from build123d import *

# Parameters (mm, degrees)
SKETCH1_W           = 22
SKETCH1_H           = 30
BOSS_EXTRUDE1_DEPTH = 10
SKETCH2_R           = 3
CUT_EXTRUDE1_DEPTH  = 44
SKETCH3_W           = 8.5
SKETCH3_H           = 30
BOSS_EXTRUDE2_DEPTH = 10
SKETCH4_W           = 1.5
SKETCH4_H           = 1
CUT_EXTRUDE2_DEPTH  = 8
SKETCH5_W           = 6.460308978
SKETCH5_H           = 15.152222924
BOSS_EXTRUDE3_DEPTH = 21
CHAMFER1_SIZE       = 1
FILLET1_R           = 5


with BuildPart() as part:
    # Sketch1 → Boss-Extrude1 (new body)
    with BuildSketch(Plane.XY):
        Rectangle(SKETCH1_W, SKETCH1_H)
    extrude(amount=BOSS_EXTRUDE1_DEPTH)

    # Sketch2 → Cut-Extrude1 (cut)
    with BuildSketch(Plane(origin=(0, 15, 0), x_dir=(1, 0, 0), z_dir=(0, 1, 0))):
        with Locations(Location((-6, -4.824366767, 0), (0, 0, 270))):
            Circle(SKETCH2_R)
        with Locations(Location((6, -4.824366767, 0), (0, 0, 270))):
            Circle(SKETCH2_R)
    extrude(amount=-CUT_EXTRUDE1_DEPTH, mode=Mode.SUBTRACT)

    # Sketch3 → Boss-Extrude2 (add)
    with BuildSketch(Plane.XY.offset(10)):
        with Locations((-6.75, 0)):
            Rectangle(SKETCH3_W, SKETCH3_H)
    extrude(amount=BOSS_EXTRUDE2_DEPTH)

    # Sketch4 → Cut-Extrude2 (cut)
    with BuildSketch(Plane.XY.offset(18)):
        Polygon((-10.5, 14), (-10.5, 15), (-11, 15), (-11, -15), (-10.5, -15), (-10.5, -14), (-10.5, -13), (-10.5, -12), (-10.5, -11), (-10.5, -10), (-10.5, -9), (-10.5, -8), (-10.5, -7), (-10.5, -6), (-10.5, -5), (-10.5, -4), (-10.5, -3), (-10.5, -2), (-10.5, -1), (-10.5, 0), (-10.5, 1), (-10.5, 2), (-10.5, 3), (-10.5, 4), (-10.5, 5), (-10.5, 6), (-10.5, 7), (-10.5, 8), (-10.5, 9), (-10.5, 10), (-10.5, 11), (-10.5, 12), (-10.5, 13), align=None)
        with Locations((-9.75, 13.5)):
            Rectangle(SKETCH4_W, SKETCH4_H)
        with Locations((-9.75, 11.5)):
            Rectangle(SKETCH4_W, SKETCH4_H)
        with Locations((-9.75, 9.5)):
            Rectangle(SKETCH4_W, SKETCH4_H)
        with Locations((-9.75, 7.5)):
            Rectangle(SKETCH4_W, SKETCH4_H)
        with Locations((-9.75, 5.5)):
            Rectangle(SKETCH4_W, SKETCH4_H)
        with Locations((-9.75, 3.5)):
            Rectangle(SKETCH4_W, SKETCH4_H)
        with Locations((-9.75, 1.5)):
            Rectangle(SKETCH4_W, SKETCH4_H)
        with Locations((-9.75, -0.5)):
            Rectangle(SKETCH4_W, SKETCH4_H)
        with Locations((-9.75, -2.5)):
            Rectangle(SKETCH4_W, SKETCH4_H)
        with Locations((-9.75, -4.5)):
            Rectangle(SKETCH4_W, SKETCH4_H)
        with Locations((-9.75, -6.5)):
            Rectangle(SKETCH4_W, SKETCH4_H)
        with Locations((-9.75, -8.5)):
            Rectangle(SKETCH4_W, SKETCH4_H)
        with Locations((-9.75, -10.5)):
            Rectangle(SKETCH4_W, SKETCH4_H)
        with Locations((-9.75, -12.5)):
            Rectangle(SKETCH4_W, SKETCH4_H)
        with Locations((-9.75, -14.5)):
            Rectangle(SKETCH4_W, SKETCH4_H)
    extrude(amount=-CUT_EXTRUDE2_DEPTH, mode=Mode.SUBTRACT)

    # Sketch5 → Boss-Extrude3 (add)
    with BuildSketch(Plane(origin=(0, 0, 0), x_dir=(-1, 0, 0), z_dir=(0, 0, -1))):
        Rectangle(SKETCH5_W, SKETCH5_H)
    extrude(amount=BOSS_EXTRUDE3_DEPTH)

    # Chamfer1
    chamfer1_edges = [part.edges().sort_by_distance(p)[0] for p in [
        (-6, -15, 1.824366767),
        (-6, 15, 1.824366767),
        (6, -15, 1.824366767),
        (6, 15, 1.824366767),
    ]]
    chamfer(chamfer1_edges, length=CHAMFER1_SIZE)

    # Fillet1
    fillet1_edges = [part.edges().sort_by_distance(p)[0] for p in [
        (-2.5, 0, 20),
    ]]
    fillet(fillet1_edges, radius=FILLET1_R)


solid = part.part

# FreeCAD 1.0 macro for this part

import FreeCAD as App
import Part
import Sketcher
from FreeCAD import Vector


def edges_at(feature, points):
    """Names of the edges that pass closest to the given points."""
    edges = feature.Shape.Edges
    near = lambda p: min(range(len(edges)), key=lambda i: edges[i].distToShape(Part.Vertex(*p))[0])
    return sorted({f"Edge{near(p) + 1}" for p in points})

doc = App.newDocument("Part")
body = doc.addObject("PartDesign::Body", "Body")

sketch1 = doc.addObject("Sketcher::SketchObject", "Sketch")
body.addObject(sketch1)
sketch1.AttachmentSupport = (doc.XY_Plane, [""])
sketch1.MapMode = "FlatFace"
sketch1.addGeometry([
    Part.LineSegment(Vector(-11, 15, 0), Vector(-11, -15, 0)),
    Part.LineSegment(Vector(-11, -15, 0), Vector(11, -15, 0)),
    Part.LineSegment(Vector(11, -15, 0), Vector(11, 15, 0)),
    Part.LineSegment(Vector(11, 15, 0), Vector(-11, 15, 0)),
], False)
sketch1.addConstraint([
    Sketcher.Constraint("Coincident", 0, 2, 1, 1),
    Sketcher.Constraint("Coincident", 1, 2, 2, 1),
    Sketcher.Constraint("Coincident", 2, 2, 3, 1),
    Sketcher.Constraint("Coincident", 3, 2, 0, 1),
    Sketcher.Constraint("Vertical", 0),
    Sketcher.Constraint("Horizontal", 1),
    Sketcher.Constraint("Vertical", 2),
    Sketcher.Constraint("Horizontal", 3),
    Sketcher.Constraint("Symmetric", 0, 2, 2, 2, -1, 1),
    Sketcher.Constraint("DistanceX", 1, 1, 1, 2, 22.0),
    Sketcher.Constraint("DistanceY", 0, 2, 0, 1, 30.0),
])
pad1 = doc.addObject("PartDesign::Pad", "Pad")
body.addObject(pad1)
pad1.Profile = sketch1
pad1.Length = 10

sketch2 = doc.addObject("Sketcher::SketchObject", "Sketch001")
body.addObject(sketch2)
sketch2.AttachmentSupport = (doc.XZ_Plane, [""])
sketch2.MapMode = "FlatFace"
sketch2.AttachmentOffset = App.Placement(Vector(0, 0, -15), App.Rotation())
sketch2.addGeometry([
    Part.Circle(Vector(-6, 4.824367, 0), Vector(0, 0, 1), 3),
    Part.Circle(Vector(6, 4.824367, 0), Vector(0, 0, 1), 3),
], False)
sketch2.addConstraint([
    Sketcher.Constraint("Equal", 0, 1),
    Sketcher.Constraint("Symmetric", 0, 3, 1, 3, -2),
    Sketcher.Constraint("Diameter", 0, 6.0),
    Sketcher.Constraint("DistanceX", 0, 3, -1, 1, 6.0),
    Sketcher.Constraint("DistanceY", -1, 1, 0, 3, 4.824367),
])
pocket1 = doc.addObject("PartDesign::Pocket", "Pocket")
body.addObject(pocket1)
pocket1.Profile = sketch2
pocket1.Length = 44
pocket1.Reversed = True

sketch3 = doc.addObject("Sketcher::SketchObject", "Sketch002")
body.addObject(sketch3)
sketch3.AttachmentSupport = (doc.XY_Plane, [""])
sketch3.MapMode = "FlatFace"
sketch3.AttachmentOffset = App.Placement(Vector(0, 0, 10), App.Rotation())
sketch3.addGeometry([
    Part.LineSegment(Vector(-11, 15, 0), Vector(-11, -15, 0)),
    Part.LineSegment(Vector(-11, -15, 0), Vector(-2.5, -15, 0)),
    Part.LineSegment(Vector(-2.5, -15, 0), Vector(-2.5, 15, 0)),
    Part.LineSegment(Vector(-2.5, 15, 0), Vector(-11, 15, 0)),
], False)
sketch3.addConstraint([
    Sketcher.Constraint("Coincident", 0, 2, 1, 1),
    Sketcher.Constraint("Coincident", 1, 2, 2, 1),
    Sketcher.Constraint("Coincident", 2, 2, 3, 1),
    Sketcher.Constraint("Coincident", 3, 2, 0, 1),
    Sketcher.Constraint("Vertical", 0),
    Sketcher.Constraint("Horizontal", 1),
    Sketcher.Constraint("Vertical", 2),
    Sketcher.Constraint("Horizontal", 3),
    Sketcher.Constraint("DistanceY", 0, 2, 0, 1, 30.0),
    Sketcher.Constraint("DistanceX", 1, 1, 1, 2, 8.5),
    Sketcher.Constraint("DistanceX", 0, 2, -1, 1, 11.0),
    Sketcher.Constraint("DistanceY", 0, 2, -1, 1, 15.0),
])
pad2 = doc.addObject("PartDesign::Pad", "Pad001")
body.addObject(pad2)
pad2.Profile = sketch3
pad2.Length = 10

sketch4 = doc.addObject("Sketcher::SketchObject", "Sketch003")
body.addObject(sketch4)
sketch4.AttachmentSupport = (doc.XY_Plane, [""])
sketch4.MapMode = "FlatFace"
sketch4.AttachmentOffset = App.Placement(Vector(0, 0, 18), App.Rotation())
sketch4.addGeometry([
    Part.LineSegment(Vector(-10.5, 15, 0), Vector(-11, 15, 0)),
    Part.LineSegment(Vector(-11, 15, 0), Vector(-11, -15, 0)),
    Part.LineSegment(Vector(-11, -15, 0), Vector(-9, -15, 0)),
    Part.LineSegment(Vector(-9, -15, 0), Vector(-9, -14, 0)),
    Part.LineSegment(Vector(-9, -14, 0), Vector(-10.5, -14, 0)),
    Part.LineSegment(Vector(-10.5, -14, 0), Vector(-10.5, -13, 0)),
    Part.LineSegment(Vector(-10.5, -13, 0), Vector(-9, -13, 0)),
    Part.LineSegment(Vector(-9, -13, 0), Vector(-9, -12, 0)),
    Part.LineSegment(Vector(-9, -12, 0), Vector(-10.5, -12, 0)),
    Part.LineSegment(Vector(-10.5, -12, 0), Vector(-10.5, -11, 0)),
    Part.LineSegment(Vector(-10.5, -11, 0), Vector(-9, -11, 0)),
    Part.LineSegment(Vector(-9, -11, 0), Vector(-9, -10, 0)),
    Part.LineSegment(Vector(-9, -10, 0), Vector(-10.5, -10, 0)),
    Part.LineSegment(Vector(-10.5, -10, 0), Vector(-10.5, -9, 0)),
    Part.LineSegment(Vector(-10.5, -9, 0), Vector(-9, -9, 0)),
    Part.LineSegment(Vector(-9, -9, 0), Vector(-9, -8, 0)),
    Part.LineSegment(Vector(-9, -8, 0), Vector(-10.5, -8, 0)),
    Part.LineSegment(Vector(-10.5, -8, 0), Vector(-10.5, -7, 0)),
    Part.LineSegment(Vector(-10.5, -7, 0), Vector(-9, -7, 0)),
    Part.LineSegment(Vector(-9, -7, 0), Vector(-9, -6, 0)),
    Part.LineSegment(Vector(-9, -6, 0), Vector(-10.5, -6, 0)),
    Part.LineSegment(Vector(-10.5, -6, 0), Vector(-10.5, -5, 0)),
    Part.LineSegment(Vector(-10.5, -5, 0), Vector(-9, -5, 0)),
    Part.LineSegment(Vector(-9, -5, 0), Vector(-9, -4, 0)),
    Part.LineSegment(Vector(-9, -4, 0), Vector(-10.5, -4, 0)),
    Part.LineSegment(Vector(-10.5, -4, 0), Vector(-10.5, -3, 0)),
    Part.LineSegment(Vector(-10.5, -3, 0), Vector(-9, -3, 0)),
    Part.LineSegment(Vector(-9, -3, 0), Vector(-9, -2, 0)),
    Part.LineSegment(Vector(-9, -2, 0), Vector(-10.5, -2, 0)),
    Part.LineSegment(Vector(-10.5, -2, 0), Vector(-10.5, -1, 0)),
    Part.LineSegment(Vector(-10.5, -1, 0), Vector(-9, -1, 0)),
    Part.LineSegment(Vector(-9, -1, 0), Vector(-9, 0, 0)),
    Part.LineSegment(Vector(-9, 0, 0), Vector(-10.5, 0, 0)),
    Part.LineSegment(Vector(-10.5, 0, 0), Vector(-10.5, 1, 0)),
    Part.LineSegment(Vector(-10.5, 1, 0), Vector(-9, 1, 0)),
    Part.LineSegment(Vector(-9, 1, 0), Vector(-9, 2, 0)),
    Part.LineSegment(Vector(-9, 2, 0), Vector(-10.5, 2, 0)),
    Part.LineSegment(Vector(-10.5, 2, 0), Vector(-10.5, 3, 0)),
    Part.LineSegment(Vector(-10.5, 3, 0), Vector(-9, 3, 0)),
    Part.LineSegment(Vector(-9, 3, 0), Vector(-9, 4, 0)),
    Part.LineSegment(Vector(-9, 4, 0), Vector(-10.5, 4, 0)),
    Part.LineSegment(Vector(-10.5, 4, 0), Vector(-10.5, 5, 0)),
    Part.LineSegment(Vector(-10.5, 5, 0), Vector(-9, 5, 0)),
    Part.LineSegment(Vector(-9, 5, 0), Vector(-9, 6, 0)),
    Part.LineSegment(Vector(-9, 6, 0), Vector(-10.5, 6, 0)),
    Part.LineSegment(Vector(-10.5, 6, 0), Vector(-10.5, 7, 0)),
    Part.LineSegment(Vector(-10.5, 7, 0), Vector(-9, 7, 0)),
    Part.LineSegment(Vector(-9, 7, 0), Vector(-9, 8, 0)),
    Part.LineSegment(Vector(-9, 8, 0), Vector(-10.5, 8, 0)),
    Part.LineSegment(Vector(-10.5, 8, 0), Vector(-10.5, 9, 0)),
    Part.LineSegment(Vector(-10.5, 9, 0), Vector(-9, 9, 0)),
    Part.LineSegment(Vector(-9, 9, 0), Vector(-9, 10, 0)),
    Part.LineSegment(Vector(-9, 10, 0), Vector(-10.5, 10, 0)),
    Part.LineSegment(Vector(-10.5, 10, 0), Vector(-10.5, 11, 0)),
    Part.LineSegment(Vector(-10.5, 11, 0), Vector(-9, 11, 0)),
    Part.LineSegment(Vector(-9, 11, 0), Vector(-9, 12, 0)),
    Part.LineSegment(Vector(-9, 12, 0), Vector(-10.5, 12, 0)),
    Part.LineSegment(Vector(-10.5, 12, 0), Vector(-10.5, 13, 0)),
    Part.LineSegment(Vector(-10.5, 13, 0), Vector(-9, 13, 0)),
    Part.LineSegment(Vector(-9, 13, 0), Vector(-9, 14, 0)),
    Part.LineSegment(Vector(-9, 14, 0), Vector(-10.5, 14, 0)),
    Part.LineSegment(Vector(-10.5, 14, 0), Vector(-10.5, 15, 0)),
], False)
sketch4.addConstraint([
    Sketcher.Constraint("Coincident", 0, 2, 1, 1),
    Sketcher.Constraint("Coincident", 1, 2, 2, 1),
    Sketcher.Constraint("Coincident", 2, 2, 3, 1),
    Sketcher.Constraint("Coincident", 3, 2, 4, 1),
    Sketcher.Constraint("Coincident", 4, 2, 5, 1),
    Sketcher.Constraint("Coincident", 5, 2, 6, 1),
    Sketcher.Constraint("Coincident", 6, 2, 7, 1),
    Sketcher.Constraint("Coincident", 7, 2, 8, 1),
    Sketcher.Constraint("Coincident", 8, 2, 9, 1),
    Sketcher.Constraint("Coincident", 9, 2, 10, 1),
    Sketcher.Constraint("Coincident", 10, 2, 11, 1),
    Sketcher.Constraint("Coincident", 11, 2, 12, 1),
    Sketcher.Constraint("Coincident", 12, 2, 13, 1),
    Sketcher.Constraint("Coincident", 13, 2, 14, 1),
    Sketcher.Constraint("Coincident", 14, 2, 15, 1),
    Sketcher.Constraint("Coincident", 15, 2, 16, 1),
    Sketcher.Constraint("Coincident", 16, 2, 17, 1),
    Sketcher.Constraint("Coincident", 17, 2, 18, 1),
    Sketcher.Constraint("Coincident", 18, 2, 19, 1),
    Sketcher.Constraint("Coincident", 19, 2, 20, 1),
    Sketcher.Constraint("Coincident", 20, 2, 21, 1),
    Sketcher.Constraint("Coincident", 21, 2, 22, 1),
    Sketcher.Constraint("Coincident", 22, 2, 23, 1),
    Sketcher.Constraint("Coincident", 23, 2, 24, 1),
    Sketcher.Constraint("Coincident", 24, 2, 25, 1),
    Sketcher.Constraint("Coincident", 25, 2, 26, 1),
    Sketcher.Constraint("Coincident", 26, 2, 27, 1),
    Sketcher.Constraint("Coincident", 27, 2, 28, 1),
    Sketcher.Constraint("Coincident", 28, 2, 29, 1),
    Sketcher.Constraint("Coincident", 29, 2, 30, 1),
    Sketcher.Constraint("Coincident", 30, 2, 31, 1),
    Sketcher.Constraint("Coincident", 31, 2, 32, 1),
    Sketcher.Constraint("Coincident", 32, 2, 33, 1),
    Sketcher.Constraint("Coincident", 33, 2, 34, 1),
    Sketcher.Constraint("Coincident", 34, 2, 35, 1),
    Sketcher.Constraint("Coincident", 35, 2, 36, 1),
    Sketcher.Constraint("Coincident", 36, 2, 37, 1),
    Sketcher.Constraint("Coincident", 37, 2, 38, 1),
    Sketcher.Constraint("Coincident", 38, 2, 39, 1),
    Sketcher.Constraint("Coincident", 39, 2, 40, 1),
    Sketcher.Constraint("Coincident", 40, 2, 41, 1),
    Sketcher.Constraint("Coincident", 41, 2, 42, 1),
    Sketcher.Constraint("Coincident", 42, 2, 43, 1),
    Sketcher.Constraint("Coincident", 43, 2, 44, 1),
    Sketcher.Constraint("Coincident", 44, 2, 45, 1),
    Sketcher.Constraint("Coincident", 45, 2, 46, 1),
    Sketcher.Constraint("Coincident", 46, 2, 47, 1),
    Sketcher.Constraint("Coincident", 47, 2, 48, 1),
    Sketcher.Constraint("Coincident", 48, 2, 49, 1),
    Sketcher.Constraint("Coincident", 49, 2, 50, 1),
    Sketcher.Constraint("Coincident", 50, 2, 51, 1),
    Sketcher.Constraint("Coincident", 51, 2, 52, 1),
    Sketcher.Constraint("Coincident", 52, 2, 53, 1),
    Sketcher.Constraint("Coincident", 53, 2, 54, 1),
    Sketcher.Constraint("Coincident", 54, 2, 55, 1),
    Sketcher.Constraint("Coincident", 55, 2, 56, 1),
    Sketcher.Constraint("Coincident", 56, 2, 57, 1),
    Sketcher.Constraint("Coincident", 57, 2, 58, 1),
    Sketcher.Constraint("Coincident", 58, 2, 59, 1),
    Sketcher.Constraint("Coincident", 59, 2, 60, 1),
    Sketcher.Constraint("Coincident", 60, 2, 61, 1),
    Sketcher.Constraint("Coincident", 61, 2, 0, 1),
    Sketcher.Constraint("Horizontal", 0),
    Sketcher.Constraint("Vertical", 1),
    Sketcher.Constraint("Horizontal", 2),
    Sketcher.Constraint("Vertical", 3),
    Sketcher.Constraint("Horizontal", 4),
    Sketcher.Constraint("Vertical", 5),
    Sketcher.Constraint("Horizontal", 6),
    Sketcher.Constraint("Vertical", 7),
    Sketcher.Constraint("Horizontal", 8),
    Sketcher.Constraint("Vertical", 9),
    Sketcher.Constraint("Horizontal", 10),
    Sketcher.Constraint("Vertical", 11),
    Sketcher.Constraint("Horizontal", 12),
    Sketcher.Constraint("Vertical", 13),
    Sketcher.Constraint("Horizontal", 14),
    Sketcher.Constraint("Vertical", 15),
    Sketcher.Constraint("Horizontal", 16),
    Sketcher.Constraint("Vertical", 17),
    Sketcher.Constraint("Horizontal", 18),
    Sketcher.Constraint("Vertical", 19),
    Sketcher.Constraint("Horizontal", 20),
    Sketcher.Constraint("Vertical", 21),
    Sketcher.Constraint("Horizontal", 22),
    Sketcher.Constraint("Vertical", 23),
    Sketcher.Constraint("Horizontal", 24),
    Sketcher.Constraint("Vertical", 25),
    Sketcher.Constraint("Horizontal", 26),
    Sketcher.Constraint("Vertical", 27),
    Sketcher.Constraint("Horizontal", 28),
    Sketcher.Constraint("Vertical", 29),
    Sketcher.Constraint("Horizontal", 30),
    Sketcher.Constraint("Vertical", 31),
    Sketcher.Constraint("Horizontal", 32),
    Sketcher.Constraint("Vertical", 33),
    Sketcher.Constraint("Horizontal", 34),
    Sketcher.Constraint("Vertical", 35),
    Sketcher.Constraint("Horizontal", 36),
    Sketcher.Constraint("Vertical", 37),
    Sketcher.Constraint("Horizontal", 38),
    Sketcher.Constraint("Vertical", 39),
    Sketcher.Constraint("Horizontal", 40),
    Sketcher.Constraint("Vertical", 41),
    Sketcher.Constraint("Horizontal", 42),
    Sketcher.Constraint("Vertical", 43),
    Sketcher.Constraint("Horizontal", 44),
    Sketcher.Constraint("Vertical", 45),
    Sketcher.Constraint("Horizontal", 46),
    Sketcher.Constraint("Vertical", 47),
    Sketcher.Constraint("Horizontal", 48),
    Sketcher.Constraint("Vertical", 49),
    Sketcher.Constraint("Horizontal", 50),
    Sketcher.Constraint("Vertical", 51),
    Sketcher.Constraint("Horizontal", 52),
    Sketcher.Constraint("Vertical", 53),
    Sketcher.Constraint("Horizontal", 54),
    Sketcher.Constraint("Vertical", 55),
    Sketcher.Constraint("Horizontal", 56),
    Sketcher.Constraint("Vertical", 57),
    Sketcher.Constraint("Horizontal", 58),
    Sketcher.Constraint("Vertical", 59),
    Sketcher.Constraint("Horizontal", 60),
    Sketcher.Constraint("Vertical", 61),
    Sketcher.Constraint("Symmetric", 29, 2, 33, 2, -1),
    Sketcher.Constraint("Symmetric", 27, 2, 35, 2, -1),
    Sketcher.Constraint("Symmetric", 25, 2, 37, 2, -1),
    Sketcher.Constraint("Symmetric", 23, 2, 39, 2, -1),
    Sketcher.Constraint("Symmetric", 21, 2, 41, 2, -1),
    Sketcher.Constraint("Symmetric", 19, 2, 43, 2, -1),
    Sketcher.Constraint("Symmetric", 17, 2, 45, 2, -1),
    Sketcher.Constraint("Symmetric", 15, 2, 47, 2, -1),
    Sketcher.Constraint("Symmetric", 13, 2, 49, 2, -1),
    Sketcher.Constraint("Symmetric", 11, 2, 51, 2, -1),
    Sketcher.Constraint("Symmetric", 9, 2, 53, 2, -1),
    Sketcher.Constraint("Symmetric", 7, 2, 55, 2, -1),
    Sketcher.Constraint("Symmetric", 5, 2, 57, 2, -1),
    Sketcher.Constraint("Symmetric", 3, 2, 59, 2, -1),
    Sketcher.Constraint("PointOnObject", 31, 2, -1),
    Sketcher.Constraint("Vertical", 3, 2, 6, 2),
    Sketcher.Constraint("Vertical", 5, 2, 8, 2),
    Sketcher.Constraint("Vertical", 7, 2, 10, 2),
    Sketcher.Constraint("Vertical", 9, 2, 12, 2),
    Sketcher.Constraint("Vertical", 11, 2, 14, 2),
    Sketcher.Constraint("Vertical", 13, 2, 16, 2),
    Sketcher.Constraint("Vertical", 15, 2, 18, 2),
    Sketcher.Constraint("Vertical", 17, 2, 20, 2),
    Sketcher.Constraint("Vertical", 19, 2, 22, 2),
    Sketcher.Constraint("Vertical", 21, 2, 24, 2),
    Sketcher.Constraint("Vertical", 23, 2, 26, 2),
    Sketcher.Constraint("Vertical", 25, 2, 28, 2),
    Sketcher.Constraint("Vertical", 27, 2, 30, 2),
    Sketcher.Constraint("Vertical", 57, 2, 60, 2),
    Sketcher.Constraint("Equal", 3, 5),
    Sketcher.Constraint("Equal", 5, 7),
    Sketcher.Constraint("Equal", 7, 9),
    Sketcher.Constraint("Equal", 9, 11),
    Sketcher.Constraint("Equal", 11, 13),
    Sketcher.Constraint("Equal", 13, 15),
    Sketcher.Constraint("Equal", 15, 17),
    Sketcher.Constraint("Equal", 17, 19),
    Sketcher.Constraint("Equal", 19, 21),
    Sketcher.Constraint("Equal", 21, 23),
    Sketcher.Constraint("Equal", 23, 25),
    Sketcher.Constraint("Equal", 25, 27),
    Sketcher.Constraint("Equal", 27, 29),
    Sketcher.Constraint("Equal", 29, 31),
    Sketcher.Constraint("Equal", 59, 61),
    Sketcher.Constraint("DistanceX", 2, 1, 2, 2, 2.0),
    Sketcher.Constraint("DistanceY", 1, 2, 1, 1, 30.0),
    Sketcher.Constraint("DistanceX", 0, 2, 0, 1, 0.5),
    Sketcher.Constraint("DistanceX", 0, 2, -1, 1, 11.0),
])
pocket2 = doc.addObject("PartDesign::Pocket", "Pocket001")
body.addObject(pocket2)
pocket2.Profile = sketch4
pocket2.Length = 8

sketch5 = doc.addObject("Sketcher::SketchObject", "Sketch004")
body.addObject(sketch5)
sketch5.AttachmentSupport = (doc.XY_Plane, [""])
sketch5.MapMode = "FlatFace"
sketch5.addGeometry([
    Part.LineSegment(Vector(3.230154, 7.576111, 0), Vector(3.230154, -7.576111, 0)),
    Part.LineSegment(Vector(3.230154, -7.576111, 0), Vector(-3.230154, -7.576111, 0)),
    Part.LineSegment(Vector(-3.230154, -7.576111, 0), Vector(-3.230154, 7.576111, 0)),
    Part.LineSegment(Vector(-3.230154, 7.576111, 0), Vector(3.230154, 7.576111, 0)),
], False)
sketch5.addConstraint([
    Sketcher.Constraint("Coincident", 0, 2, 1, 1),
    Sketcher.Constraint("Coincident", 1, 2, 2, 1),
    Sketcher.Constraint("Coincident", 2, 2, 3, 1),
    Sketcher.Constraint("Coincident", 3, 2, 0, 1),
    Sketcher.Constraint("Vertical", 0),
    Sketcher.Constraint("Horizontal", 1),
    Sketcher.Constraint("Vertical", 2),
    Sketcher.Constraint("Horizontal", 3),
    Sketcher.Constraint("Symmetric", 0, 2, 2, 2, -1, 1),
    Sketcher.Constraint("DistanceX", 1, 2, 1, 1, 6.460309),
    Sketcher.Constraint("DistanceY", 0, 2, 0, 1, 15.152223),
])
pad3 = doc.addObject("PartDesign::Pad", "Pad002")
body.addObject(pad3)
pad3.Profile = sketch5
pad3.Length = 21
pad3.Reversed = True
doc.recompute()

chamfer = doc.addObject("PartDesign::Chamfer", "Chamfer")
body.addObject(chamfer)
chamfer.Base = (pad3, edges_at(pad3, [
    (-6, -15, 1.824),
    (-6, 15, 1.824),
    (6, -15, 1.824),
    (6, 15, 1.824),
]))
chamfer.Size = 1
doc.recompute()

fillet = doc.addObject("PartDesign::Fillet", "Fillet")
body.addObject(fillet)
fillet.Base = (chamfer, edges_at(chamfer, [(-2.5, 0, 20)]))
fillet.Radius = 5

doc.recompute()
